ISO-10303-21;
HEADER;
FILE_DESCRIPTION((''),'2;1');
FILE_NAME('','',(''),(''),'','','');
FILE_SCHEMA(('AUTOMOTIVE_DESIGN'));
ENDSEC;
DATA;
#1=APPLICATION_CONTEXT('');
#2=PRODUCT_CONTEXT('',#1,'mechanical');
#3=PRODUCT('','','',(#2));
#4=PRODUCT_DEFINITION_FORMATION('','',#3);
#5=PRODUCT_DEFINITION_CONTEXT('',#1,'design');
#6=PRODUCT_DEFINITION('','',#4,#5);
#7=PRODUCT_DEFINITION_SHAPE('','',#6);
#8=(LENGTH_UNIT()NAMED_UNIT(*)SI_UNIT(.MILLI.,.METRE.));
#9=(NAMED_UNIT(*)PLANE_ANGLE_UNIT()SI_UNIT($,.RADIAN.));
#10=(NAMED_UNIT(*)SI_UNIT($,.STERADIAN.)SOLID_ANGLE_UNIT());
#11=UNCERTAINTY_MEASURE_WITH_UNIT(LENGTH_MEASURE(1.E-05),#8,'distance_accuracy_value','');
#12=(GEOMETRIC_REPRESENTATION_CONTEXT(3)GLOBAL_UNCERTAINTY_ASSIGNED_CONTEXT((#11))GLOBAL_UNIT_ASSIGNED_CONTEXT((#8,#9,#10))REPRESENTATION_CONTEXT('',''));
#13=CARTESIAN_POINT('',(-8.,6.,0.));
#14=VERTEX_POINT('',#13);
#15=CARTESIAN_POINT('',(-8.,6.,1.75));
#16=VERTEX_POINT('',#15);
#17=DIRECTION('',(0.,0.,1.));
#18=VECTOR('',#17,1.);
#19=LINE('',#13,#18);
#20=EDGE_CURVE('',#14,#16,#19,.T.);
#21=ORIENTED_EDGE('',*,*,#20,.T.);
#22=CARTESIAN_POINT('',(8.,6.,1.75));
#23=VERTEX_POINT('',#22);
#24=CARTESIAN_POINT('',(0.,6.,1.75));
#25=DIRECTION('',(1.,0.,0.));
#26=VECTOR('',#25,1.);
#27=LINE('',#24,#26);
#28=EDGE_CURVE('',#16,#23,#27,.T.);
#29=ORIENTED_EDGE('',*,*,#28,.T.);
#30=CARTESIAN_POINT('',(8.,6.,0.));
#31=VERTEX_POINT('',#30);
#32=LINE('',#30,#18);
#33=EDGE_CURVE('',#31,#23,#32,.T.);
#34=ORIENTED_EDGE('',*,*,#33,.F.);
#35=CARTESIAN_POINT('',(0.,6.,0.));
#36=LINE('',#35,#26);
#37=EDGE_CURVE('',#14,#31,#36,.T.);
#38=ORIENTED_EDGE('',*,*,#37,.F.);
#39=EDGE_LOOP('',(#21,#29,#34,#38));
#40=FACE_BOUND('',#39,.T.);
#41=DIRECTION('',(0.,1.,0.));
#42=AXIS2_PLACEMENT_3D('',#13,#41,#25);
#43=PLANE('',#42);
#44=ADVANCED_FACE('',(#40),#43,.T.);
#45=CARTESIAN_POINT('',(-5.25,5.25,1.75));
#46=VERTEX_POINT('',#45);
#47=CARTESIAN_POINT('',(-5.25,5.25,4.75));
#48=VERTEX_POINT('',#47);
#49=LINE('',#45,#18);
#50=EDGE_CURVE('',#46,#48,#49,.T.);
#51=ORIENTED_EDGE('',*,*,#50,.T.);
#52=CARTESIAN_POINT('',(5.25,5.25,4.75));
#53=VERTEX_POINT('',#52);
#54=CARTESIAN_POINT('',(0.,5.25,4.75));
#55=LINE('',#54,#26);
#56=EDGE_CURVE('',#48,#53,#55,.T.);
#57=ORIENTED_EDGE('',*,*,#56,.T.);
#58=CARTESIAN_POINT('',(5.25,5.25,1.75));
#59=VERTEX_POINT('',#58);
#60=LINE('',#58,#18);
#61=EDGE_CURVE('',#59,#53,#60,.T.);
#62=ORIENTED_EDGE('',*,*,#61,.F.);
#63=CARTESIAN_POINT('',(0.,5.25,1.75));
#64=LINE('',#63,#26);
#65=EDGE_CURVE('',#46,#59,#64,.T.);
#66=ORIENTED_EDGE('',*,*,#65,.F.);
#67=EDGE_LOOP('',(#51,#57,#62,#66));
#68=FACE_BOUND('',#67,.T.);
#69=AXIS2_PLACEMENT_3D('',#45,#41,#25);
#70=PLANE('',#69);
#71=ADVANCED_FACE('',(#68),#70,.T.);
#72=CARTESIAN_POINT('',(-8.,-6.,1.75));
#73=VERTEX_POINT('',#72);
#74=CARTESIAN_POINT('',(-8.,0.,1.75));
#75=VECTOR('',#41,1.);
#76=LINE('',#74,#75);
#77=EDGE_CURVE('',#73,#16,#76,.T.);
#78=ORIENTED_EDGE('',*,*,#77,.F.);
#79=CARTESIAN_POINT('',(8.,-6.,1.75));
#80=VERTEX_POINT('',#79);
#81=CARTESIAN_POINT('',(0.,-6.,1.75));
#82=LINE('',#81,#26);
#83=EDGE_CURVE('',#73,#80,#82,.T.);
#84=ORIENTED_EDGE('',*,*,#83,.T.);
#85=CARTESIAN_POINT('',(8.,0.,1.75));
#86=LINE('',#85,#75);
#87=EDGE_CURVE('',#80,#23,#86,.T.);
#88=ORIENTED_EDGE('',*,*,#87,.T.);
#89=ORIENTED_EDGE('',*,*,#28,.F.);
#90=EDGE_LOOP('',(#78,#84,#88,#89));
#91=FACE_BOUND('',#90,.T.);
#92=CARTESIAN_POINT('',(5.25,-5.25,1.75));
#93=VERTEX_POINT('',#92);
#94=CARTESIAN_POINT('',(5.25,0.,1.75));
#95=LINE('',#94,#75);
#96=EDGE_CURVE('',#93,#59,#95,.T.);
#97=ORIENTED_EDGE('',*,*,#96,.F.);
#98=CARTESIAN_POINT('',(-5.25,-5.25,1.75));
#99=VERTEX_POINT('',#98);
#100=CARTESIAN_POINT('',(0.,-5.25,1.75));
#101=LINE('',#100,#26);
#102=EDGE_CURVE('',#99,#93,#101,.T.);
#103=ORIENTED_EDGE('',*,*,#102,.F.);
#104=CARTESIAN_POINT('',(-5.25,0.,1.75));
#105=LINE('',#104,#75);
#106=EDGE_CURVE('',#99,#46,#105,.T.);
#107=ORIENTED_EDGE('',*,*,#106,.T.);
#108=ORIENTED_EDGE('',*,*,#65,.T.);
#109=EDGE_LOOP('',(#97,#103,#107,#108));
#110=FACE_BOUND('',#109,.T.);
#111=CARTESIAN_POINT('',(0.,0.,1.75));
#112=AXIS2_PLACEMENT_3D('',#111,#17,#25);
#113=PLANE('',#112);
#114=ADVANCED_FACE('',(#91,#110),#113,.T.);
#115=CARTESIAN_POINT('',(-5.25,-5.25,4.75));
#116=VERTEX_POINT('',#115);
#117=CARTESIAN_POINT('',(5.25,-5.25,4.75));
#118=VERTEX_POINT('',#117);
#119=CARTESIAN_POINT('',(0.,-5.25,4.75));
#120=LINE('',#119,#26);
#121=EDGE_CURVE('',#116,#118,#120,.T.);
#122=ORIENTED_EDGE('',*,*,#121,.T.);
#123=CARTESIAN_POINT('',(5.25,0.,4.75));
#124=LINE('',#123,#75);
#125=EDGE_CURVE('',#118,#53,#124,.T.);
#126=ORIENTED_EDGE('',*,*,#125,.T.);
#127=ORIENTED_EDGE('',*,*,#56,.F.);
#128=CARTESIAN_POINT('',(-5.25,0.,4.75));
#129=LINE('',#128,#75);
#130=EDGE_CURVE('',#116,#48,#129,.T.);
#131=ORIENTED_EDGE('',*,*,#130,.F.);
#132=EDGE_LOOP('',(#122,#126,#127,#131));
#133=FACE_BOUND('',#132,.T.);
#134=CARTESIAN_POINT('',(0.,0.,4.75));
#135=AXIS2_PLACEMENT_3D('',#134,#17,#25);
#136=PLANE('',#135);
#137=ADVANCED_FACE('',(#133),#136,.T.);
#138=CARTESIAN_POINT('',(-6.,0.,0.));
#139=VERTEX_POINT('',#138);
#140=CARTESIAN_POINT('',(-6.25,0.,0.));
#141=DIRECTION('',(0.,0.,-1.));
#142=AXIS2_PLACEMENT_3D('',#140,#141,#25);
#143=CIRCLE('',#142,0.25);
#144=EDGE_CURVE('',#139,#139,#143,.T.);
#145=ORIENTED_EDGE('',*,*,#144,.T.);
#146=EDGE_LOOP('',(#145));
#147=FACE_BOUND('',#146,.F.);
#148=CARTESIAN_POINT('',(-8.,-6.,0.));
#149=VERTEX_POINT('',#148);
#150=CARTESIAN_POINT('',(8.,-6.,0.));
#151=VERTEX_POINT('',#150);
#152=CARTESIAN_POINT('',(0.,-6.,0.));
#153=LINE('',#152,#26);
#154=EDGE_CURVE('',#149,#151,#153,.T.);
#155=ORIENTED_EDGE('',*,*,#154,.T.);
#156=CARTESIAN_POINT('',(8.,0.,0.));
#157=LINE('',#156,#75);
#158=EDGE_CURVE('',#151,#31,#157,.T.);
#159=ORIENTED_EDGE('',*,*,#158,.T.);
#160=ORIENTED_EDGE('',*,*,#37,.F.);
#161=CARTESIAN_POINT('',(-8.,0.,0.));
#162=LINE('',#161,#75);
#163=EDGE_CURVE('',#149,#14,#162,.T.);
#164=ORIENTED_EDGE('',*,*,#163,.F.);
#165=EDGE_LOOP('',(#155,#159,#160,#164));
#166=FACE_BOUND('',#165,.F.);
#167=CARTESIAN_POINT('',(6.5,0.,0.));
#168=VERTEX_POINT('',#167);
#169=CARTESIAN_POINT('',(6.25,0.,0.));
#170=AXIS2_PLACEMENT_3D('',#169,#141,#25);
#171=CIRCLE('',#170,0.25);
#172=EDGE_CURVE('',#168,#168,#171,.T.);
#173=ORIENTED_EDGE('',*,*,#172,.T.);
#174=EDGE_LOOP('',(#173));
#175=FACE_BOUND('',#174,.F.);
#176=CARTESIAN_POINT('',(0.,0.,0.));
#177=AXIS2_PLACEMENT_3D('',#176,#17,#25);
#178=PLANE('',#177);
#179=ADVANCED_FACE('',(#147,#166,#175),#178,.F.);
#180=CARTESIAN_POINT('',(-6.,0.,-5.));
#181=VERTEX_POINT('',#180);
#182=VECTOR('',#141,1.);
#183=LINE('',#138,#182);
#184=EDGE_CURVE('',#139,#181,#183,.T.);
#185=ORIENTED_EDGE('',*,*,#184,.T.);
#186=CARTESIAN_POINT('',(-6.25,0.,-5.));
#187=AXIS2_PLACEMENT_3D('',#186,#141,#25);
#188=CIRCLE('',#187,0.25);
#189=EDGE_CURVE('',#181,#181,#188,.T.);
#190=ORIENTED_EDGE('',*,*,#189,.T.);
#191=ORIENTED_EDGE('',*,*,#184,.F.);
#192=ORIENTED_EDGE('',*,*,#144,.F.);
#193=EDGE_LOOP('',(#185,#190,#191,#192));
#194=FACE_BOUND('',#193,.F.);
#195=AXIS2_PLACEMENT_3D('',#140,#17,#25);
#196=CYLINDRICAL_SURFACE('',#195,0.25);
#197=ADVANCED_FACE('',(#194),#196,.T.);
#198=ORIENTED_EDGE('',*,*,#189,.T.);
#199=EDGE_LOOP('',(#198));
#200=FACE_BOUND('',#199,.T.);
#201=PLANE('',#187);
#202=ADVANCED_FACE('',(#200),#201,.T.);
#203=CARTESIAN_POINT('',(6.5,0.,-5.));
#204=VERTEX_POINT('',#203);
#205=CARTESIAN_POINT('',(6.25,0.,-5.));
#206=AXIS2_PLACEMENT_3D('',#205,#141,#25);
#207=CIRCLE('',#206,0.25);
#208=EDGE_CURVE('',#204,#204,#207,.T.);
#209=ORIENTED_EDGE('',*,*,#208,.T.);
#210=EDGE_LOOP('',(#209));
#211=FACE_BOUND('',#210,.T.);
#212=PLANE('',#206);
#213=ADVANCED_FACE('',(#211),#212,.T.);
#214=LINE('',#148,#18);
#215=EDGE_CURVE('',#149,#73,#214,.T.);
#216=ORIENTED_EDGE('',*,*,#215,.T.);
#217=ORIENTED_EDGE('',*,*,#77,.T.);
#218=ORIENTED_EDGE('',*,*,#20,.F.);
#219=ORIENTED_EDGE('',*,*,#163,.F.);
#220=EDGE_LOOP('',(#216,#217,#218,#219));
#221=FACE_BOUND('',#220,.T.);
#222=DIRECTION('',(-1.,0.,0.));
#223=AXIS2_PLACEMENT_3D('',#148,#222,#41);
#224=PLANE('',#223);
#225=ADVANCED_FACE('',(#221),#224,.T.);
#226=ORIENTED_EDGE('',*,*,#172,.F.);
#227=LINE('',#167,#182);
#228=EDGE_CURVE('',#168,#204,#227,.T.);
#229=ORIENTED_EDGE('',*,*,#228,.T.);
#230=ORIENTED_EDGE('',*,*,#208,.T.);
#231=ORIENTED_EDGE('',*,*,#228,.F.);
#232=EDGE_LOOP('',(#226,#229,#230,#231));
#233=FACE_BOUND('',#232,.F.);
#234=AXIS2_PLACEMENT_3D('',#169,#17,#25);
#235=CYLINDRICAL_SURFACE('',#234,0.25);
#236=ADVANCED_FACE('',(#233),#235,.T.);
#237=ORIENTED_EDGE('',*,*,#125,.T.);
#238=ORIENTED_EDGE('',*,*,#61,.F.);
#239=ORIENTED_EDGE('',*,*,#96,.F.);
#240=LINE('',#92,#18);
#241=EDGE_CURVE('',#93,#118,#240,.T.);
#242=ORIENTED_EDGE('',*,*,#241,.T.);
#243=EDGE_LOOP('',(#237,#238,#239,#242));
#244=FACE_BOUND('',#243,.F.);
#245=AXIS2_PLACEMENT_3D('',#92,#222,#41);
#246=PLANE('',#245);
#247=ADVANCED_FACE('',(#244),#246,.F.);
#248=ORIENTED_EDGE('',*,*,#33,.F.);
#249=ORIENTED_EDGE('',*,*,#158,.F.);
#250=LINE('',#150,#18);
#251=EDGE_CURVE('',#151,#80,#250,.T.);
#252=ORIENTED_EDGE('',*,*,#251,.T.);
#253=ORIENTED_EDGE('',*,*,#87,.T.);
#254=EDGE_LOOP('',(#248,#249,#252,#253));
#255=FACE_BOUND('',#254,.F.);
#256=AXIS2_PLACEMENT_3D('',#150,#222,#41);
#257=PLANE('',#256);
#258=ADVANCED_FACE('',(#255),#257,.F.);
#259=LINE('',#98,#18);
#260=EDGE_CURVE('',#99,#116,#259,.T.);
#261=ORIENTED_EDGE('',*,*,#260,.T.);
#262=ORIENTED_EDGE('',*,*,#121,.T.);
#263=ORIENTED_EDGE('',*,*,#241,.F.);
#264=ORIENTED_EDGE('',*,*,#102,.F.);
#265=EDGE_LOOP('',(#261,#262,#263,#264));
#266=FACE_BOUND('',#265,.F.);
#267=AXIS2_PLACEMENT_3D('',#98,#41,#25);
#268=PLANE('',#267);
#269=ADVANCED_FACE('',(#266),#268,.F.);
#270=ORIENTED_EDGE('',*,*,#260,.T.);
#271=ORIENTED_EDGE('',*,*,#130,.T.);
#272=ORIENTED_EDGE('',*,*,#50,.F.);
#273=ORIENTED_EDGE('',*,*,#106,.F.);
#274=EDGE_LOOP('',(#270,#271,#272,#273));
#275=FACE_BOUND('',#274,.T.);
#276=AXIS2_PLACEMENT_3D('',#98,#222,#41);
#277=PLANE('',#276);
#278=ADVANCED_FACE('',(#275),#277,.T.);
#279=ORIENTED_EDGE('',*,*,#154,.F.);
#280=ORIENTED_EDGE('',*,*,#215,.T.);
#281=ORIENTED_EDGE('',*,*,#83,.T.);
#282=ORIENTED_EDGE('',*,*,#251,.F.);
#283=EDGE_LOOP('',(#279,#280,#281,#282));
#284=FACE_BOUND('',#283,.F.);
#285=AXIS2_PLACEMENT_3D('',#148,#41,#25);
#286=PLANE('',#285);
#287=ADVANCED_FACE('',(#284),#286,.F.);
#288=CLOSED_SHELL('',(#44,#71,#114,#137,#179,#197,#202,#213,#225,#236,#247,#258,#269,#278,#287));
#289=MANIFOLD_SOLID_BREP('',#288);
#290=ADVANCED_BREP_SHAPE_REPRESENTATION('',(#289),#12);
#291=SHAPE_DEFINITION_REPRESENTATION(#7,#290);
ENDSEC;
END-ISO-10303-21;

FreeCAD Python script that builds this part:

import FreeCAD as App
import Part
import Sketcher
Q = App.Units.Quantity


def add_polygon(sketch, points):
    """Adds a closed chain of lines whose ends are joined by coincident constraints."""
    first, n = sketch.GeometryCount, len(points)
    for a, b in zip(points, points[1:] + points[:1]):
        sketch.addGeometry(Part.LineSegment(App.Vector(*a, 0), App.Vector(*b, 0)), False)
    for i in range(n):
        sketch.addConstraint(Sketcher.Constraint("Coincident", first + i, 2, first + (i + 1) % n, 1))

doc = App.newDocument("Part")
body = doc.addObject("PartDesign::Body", "Body")

# Sketch on XY plane
sketch1 = doc.addObject("Sketcher::SketchObject", "Sketch")
body.addObject(sketch1)
sketch1.AttachmentSupport = (doc.XY_Plane, [""])
sketch1.MapMode = "FlatFace"
add_polygon(sketch1, [(-8, 6), (-8, -6), (8, -6), (8, 6)])  # lines 0-3
sketch1.addConstraint([
    Sketcher.Constraint("Vertical", 0),
    Sketcher.Constraint("Horizontal", 1),
    Sketcher.Constraint("Vertical", 2),
    Sketcher.Constraint("Horizontal", 3),
    Sketcher.Constraint("Symmetric", 0, 2, 2, 2, -1, 1),
    Sketcher.Constraint("DistanceX", 1, 1, 1, 2, Q("16 mm")),
    Sketcher.Constraint("DistanceY", 0, 2, 0, 1, Q("12 mm")),
])
pad1 = doc.addObject("PartDesign::Pad", "Pad")
body.addObject(pad1)
pad1.Profile = sketch1
pad1.Length = 1.75

# Sketch on XY plane
sketch2 = doc.addObject("Sketcher::SketchObject", "Sketch001")
body.addObject(sketch2)
sketch2.AttachmentSupport = (doc.XY_Plane, [""])
sketch2.MapMode = "FlatFace"
sketch2.AttachmentOffset = App.Placement(App.Vector(0, 0, 1.75), App.Rotation())
add_polygon(sketch2, [(-5, 5), (-5, -5), (5, -5), (5, 5)])  # lines 0-3
sketch2.addConstraint([
    Sketcher.Constraint("Vertical", 0),
    Sketcher.Constraint("Horizontal", 1),
    Sketcher.Constraint("Vertical", 2),
    Sketcher.Constraint("Horizontal", 3),
    Sketcher.Constraint("Symmetric", 0, 2, 2, 2, -1, 1),
    Sketcher.Constraint("Equal", 3, 0),
    Sketcher.Constraint("DistanceX", 1, 1, 1, 2, Q("10.5 mm")),
])
pad2 = doc.addObject("PartDesign::Pad", "Pad001")
body.addObject(pad2)
pad2.Profile = sketch2
pad2.Length = 3

# Sketch on XY plane
sketch3 = doc.addObject("Sketcher::SketchObject", "Sketch002")
body.addObject(sketch3)
sketch3.AttachmentSupport = (doc.XY_Plane, [""])
sketch3.MapMode = "FlatFace"
sketch3.addGeometry([
    Part.Circle(App.Vector(-6.25, 0, 0), App.Vector(0, 0, 1), 0.25),
    Part.Circle(App.Vector(6.25, 0, 0), App.Vector(0, 0, 1), 0.25),
], False)
sketch3.addConstraint([
    Sketcher.Constraint("Equal", 0, 1),
    Sketcher.Constraint("Symmetric", 0, 3, 1, 3, -1, 1),
    Sketcher.Constraint("PointOnObject", 0, 3, -1),
    Sketcher.Constraint("Diameter", 0, Q("0.5 mm")),
    Sketcher.Constraint("DistanceX", 0, 3, 1, 3, Q("12.5 mm")),
])
pad3 = doc.addObject("PartDesign::Pad", "Pad002")
body.addObject(pad3)
pad3.Profile = sketch3
pad3.Length = 5
pad3.Reversed = True

doc.recompute()
